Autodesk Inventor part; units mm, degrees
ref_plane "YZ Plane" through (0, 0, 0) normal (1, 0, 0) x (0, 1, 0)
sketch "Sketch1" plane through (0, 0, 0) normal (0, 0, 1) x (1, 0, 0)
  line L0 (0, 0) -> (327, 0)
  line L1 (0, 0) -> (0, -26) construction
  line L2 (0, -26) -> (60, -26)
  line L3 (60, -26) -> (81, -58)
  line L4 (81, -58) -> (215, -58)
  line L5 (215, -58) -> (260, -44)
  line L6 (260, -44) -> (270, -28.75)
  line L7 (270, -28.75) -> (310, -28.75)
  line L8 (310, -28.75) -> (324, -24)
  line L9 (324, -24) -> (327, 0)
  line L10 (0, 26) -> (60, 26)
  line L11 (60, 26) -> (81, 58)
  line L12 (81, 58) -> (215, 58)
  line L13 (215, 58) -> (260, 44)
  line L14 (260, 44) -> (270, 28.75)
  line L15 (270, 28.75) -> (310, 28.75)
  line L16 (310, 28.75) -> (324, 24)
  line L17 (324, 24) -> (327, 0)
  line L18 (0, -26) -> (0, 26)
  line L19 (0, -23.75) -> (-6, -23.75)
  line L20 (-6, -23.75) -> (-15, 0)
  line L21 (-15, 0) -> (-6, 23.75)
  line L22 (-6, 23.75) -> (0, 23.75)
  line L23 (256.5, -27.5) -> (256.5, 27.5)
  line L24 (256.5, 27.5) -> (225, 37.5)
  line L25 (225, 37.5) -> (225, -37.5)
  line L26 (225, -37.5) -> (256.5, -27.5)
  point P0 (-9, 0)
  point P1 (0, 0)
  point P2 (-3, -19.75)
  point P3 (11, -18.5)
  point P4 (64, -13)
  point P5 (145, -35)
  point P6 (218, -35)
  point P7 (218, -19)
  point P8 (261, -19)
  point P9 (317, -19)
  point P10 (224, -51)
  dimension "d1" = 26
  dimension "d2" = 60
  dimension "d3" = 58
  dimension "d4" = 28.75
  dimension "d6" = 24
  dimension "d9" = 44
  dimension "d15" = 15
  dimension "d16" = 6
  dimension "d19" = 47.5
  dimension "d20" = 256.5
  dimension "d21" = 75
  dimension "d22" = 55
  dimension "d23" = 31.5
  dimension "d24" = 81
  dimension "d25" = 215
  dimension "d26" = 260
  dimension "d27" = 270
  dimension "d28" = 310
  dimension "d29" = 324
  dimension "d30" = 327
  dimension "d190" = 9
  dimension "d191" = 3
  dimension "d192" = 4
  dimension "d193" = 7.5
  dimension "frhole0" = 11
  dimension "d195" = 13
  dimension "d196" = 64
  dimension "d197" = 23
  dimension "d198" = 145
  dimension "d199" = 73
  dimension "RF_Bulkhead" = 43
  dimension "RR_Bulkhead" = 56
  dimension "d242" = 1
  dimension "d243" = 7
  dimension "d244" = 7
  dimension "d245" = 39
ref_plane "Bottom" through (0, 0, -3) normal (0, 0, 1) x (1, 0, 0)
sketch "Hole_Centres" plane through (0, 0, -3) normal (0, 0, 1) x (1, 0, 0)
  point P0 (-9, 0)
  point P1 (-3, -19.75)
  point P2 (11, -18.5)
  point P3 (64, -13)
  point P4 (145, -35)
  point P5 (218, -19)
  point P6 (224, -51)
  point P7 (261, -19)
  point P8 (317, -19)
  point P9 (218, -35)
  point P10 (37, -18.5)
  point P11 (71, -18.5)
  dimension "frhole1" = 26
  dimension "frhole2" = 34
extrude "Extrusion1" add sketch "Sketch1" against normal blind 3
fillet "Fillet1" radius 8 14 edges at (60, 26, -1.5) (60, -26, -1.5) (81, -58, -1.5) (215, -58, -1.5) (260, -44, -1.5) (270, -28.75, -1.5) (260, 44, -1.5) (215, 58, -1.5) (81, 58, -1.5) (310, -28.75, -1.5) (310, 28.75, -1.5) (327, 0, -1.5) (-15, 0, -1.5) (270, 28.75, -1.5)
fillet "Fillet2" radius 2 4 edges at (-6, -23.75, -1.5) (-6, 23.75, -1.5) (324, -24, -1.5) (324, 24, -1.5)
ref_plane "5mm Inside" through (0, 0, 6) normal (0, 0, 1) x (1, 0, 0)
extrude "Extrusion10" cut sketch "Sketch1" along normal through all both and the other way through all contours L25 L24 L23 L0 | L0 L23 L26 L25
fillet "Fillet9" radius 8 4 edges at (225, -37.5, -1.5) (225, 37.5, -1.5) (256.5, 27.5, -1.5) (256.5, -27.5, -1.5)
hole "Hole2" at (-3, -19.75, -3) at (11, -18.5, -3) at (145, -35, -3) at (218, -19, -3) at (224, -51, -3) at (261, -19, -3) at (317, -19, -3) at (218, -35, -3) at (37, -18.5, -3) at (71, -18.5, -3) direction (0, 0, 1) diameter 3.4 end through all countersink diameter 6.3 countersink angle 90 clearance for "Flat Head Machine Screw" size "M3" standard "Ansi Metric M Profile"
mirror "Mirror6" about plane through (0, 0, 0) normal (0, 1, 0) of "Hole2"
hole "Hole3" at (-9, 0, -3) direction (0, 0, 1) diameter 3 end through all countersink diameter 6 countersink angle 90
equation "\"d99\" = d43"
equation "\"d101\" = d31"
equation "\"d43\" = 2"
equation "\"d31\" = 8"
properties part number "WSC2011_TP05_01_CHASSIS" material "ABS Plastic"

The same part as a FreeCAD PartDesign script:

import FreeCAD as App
import Part
import Sketcher
from FreeCAD import Vector


def edges_at(feature, points):
    """Names of the edges that pass closest to the given points."""
    edges = feature.Shape.Edges
    near = lambda p: min(range(len(edges)), key=lambda i: edges[i].distToShape(Part.Vertex(*p))[0])
    return sorted({f"Edge{near(p) + 1}" for p in points})


def add_polygon(sketch, points):
    """Adds a closed chain of lines whose ends are joined by coincident constraints."""
    first, n = sketch.GeometryCount, len(points)
    for a, b in zip(points, points[1:] + points[:1]):
        sketch.addGeometry(Part.LineSegment(App.Vector(*a, 0), App.Vector(*b, 0)), False)
    for i in range(n):
        sketch.addConstraint(Sketcher.Constraint("Coincident", first + i, 2, first + (i + 1) % n, 1))

doc = App.newDocument("Part")
params = doc.addObject("Spreadsheet::Sheet", "Params")
for row, (alias, value) in enumerate([
    ("sketch1_width", "6 mm"),
    ("sketch1_width2", "6 mm"),
    ("sketch1_width3", "60 mm"),
    ("sketch1_width4", "60 mm"),
    ("sketch1_height", "2.25 mm"),
    ("pad1_length", "3 mm"),
    ("fillet_radius", "8 mm"),
    ("fillet2_radius", "2 mm"),
    ("sketch2_height", "75 mm"),
    ("sketch2_height2", "55 mm"),
    ("fillet3_radius", "8 mm"),
    ("sketch3_diameter", "3.4 mm"),
    ("hole_diameter", "3.4 mm"),
    ("hole_csink_diameter", "6.3 mm"),
    ("sketch4_diameter", "3 mm"),
    ("hole2_diameter", "3 mm"),
    ("hole2_csink_diameter", "6 mm"),
], start=1):
    params.set(f"A{row}", alias)
    params.set(f"B{row}", "=" + value)
    params.setAlias(f"B{row}", alias)

body = doc.addObject("PartDesign::Body", "Body")

# Sketch on XY plane
sketch1 = body.newObject("Sketcher::SketchObject", "Sketch")
sketch1.AttachmentSupport = (doc.getObject("XY_Plane"), [""])
sketch1.MapMode = "FlatFace"
add_polygon(sketch1, [(0, 26), (0, 23.75), (-6, 23.75), (-15, 0), (-6, -23.75), (0, -23.75), (0, -26), (60, -26), (81, -58), (215, -58), (260, -44), (270, -28.75), (310, -28.75), (324, -24), (327, 0), (324, 24), (310, 28.75), (270, 28.75), (260, 44), (215, 58), (81, 58), (60, 26)])  # lines 0-21
sketch1.addConstraint(Sketcher.Constraint("Vertical", 0))
sketch1.addConstraint(Sketcher.Constraint("Horizontal", 1))
sketch1.addConstraint(Sketcher.Constraint("Horizontal", 4))
sketch1.addConstraint(Sketcher.Constraint("Vertical", 5))
sketch1.addConstraint(Sketcher.Constraint("Horizontal", 6))
sketch1.addConstraint(Sketcher.Constraint("Horizontal", 8))
sketch1.addConstraint(Sketcher.Constraint("Horizontal", 11))
sketch1.addConstraint(Sketcher.Constraint("Horizontal", 16))
sketch1.addConstraint(Sketcher.Constraint("Horizontal", 19))
sketch1.addConstraint(Sketcher.Constraint("Horizontal", 21))
sketch1.addConstraint(Sketcher.Constraint("PointOnObject", 0, 2, -2))
sketch1.addConstraint(Sketcher.Constraint("PointOnObject", 2, 2, -1))
sketch1.addConstraint(Sketcher.Constraint("PointOnObject", 4, 2, -2))
sketch1.addConstraint(Sketcher.Constraint("PointOnObject", 13, 2, -1))
sketch1.addConstraint(Sketcher.Constraint("DistanceX", 1, 2, 1, 1, 6.0))
sketch1.addConstraint(Sketcher.Constraint("DistanceX", 4, 1, 4, 2, 6.0))
sketch1.addConstraint(Sketcher.Constraint("DistanceX", 6, 1, 6, 2, 60.0))
sketch1.addConstraint(Sketcher.Constraint("DistanceX", 21, 2, 21, 1, 60.0))
sketch1.addConstraint(Sketcher.Constraint("DistanceX", 2, 2, -1, 1, 15.0))
sketch1.addConstraint(Sketcher.Constraint("DistanceY", 5, 2, -1, 1, 26.0))
sketch1.addConstraint(Sketcher.Constraint("DistanceX", -1, 1, 7, 2, 81.0))
sketch1.addConstraint(Sketcher.Constraint("DistanceY", 7, 2, -1, 1, 58.0))
sketch1.addConstraint(Sketcher.Constraint("DistanceX", -1, 1, 8, 2, 215.0))
sketch1.addConstraint(Sketcher.Constraint("DistanceX", -1, 1, 9, 2, 260.0))
sketch1.addConstraint(Sketcher.Constraint("DistanceY", 9, 2, -1, 1, 44.0))
sketch1.addConstraint(Sketcher.Constraint("DistanceX", -1, 1, 10, 2, 270.0))
sketch1.addConstraint(Sketcher.Constraint("DistanceX", -1, 1, 11, 2, 310.0))
sketch1.addConstraint(Sketcher.Constraint("DistanceX", -1, 1, 12, 2, 324.0))
sketch1.addConstraint(Sketcher.Constraint("DistanceY", 12, 2, -1, 1, 24.0))
sketch1.addConstraint(Sketcher.Constraint("DistanceX", -1, 1, 13, 2, 327.0))
sketch1.addConstraint(Sketcher.Constraint("DistanceX", -1, 1, 14, 2, 324.0))
sketch1.addConstraint(Sketcher.Constraint("DistanceY", -1, 1, 14, 2, 24.0))
sketch1.addConstraint(Sketcher.Constraint("DistanceX", -1, 1, 15, 2, 310.0))
sketch1.addConstraint(Sketcher.Constraint("DistanceX", -1, 1, 16, 2, 270.0))
sketch1.addConstraint(Sketcher.Constraint("DistanceX", -1, 1, 17, 2, 260.0))
sketch1.addConstraint(Sketcher.Constraint("DistanceY", -1, 1, 17, 2, 44.0))
sketch1.addConstraint(Sketcher.Constraint("DistanceX", -1, 1, 18, 2, 215.0))
sketch1.addConstraint(Sketcher.Constraint("DistanceY", -1, 1, 18, 2, 58.0))
sketch1.addConstraint(Sketcher.Constraint("DistanceX", -1, 1, 19, 2, 81.0))
sketch1.addConstraint(Sketcher.Constraint("DistanceY", -1, 1, 20, 2, 26.0))
sketch1.addConstraint(Sketcher.Constraint("DistanceY", 3, 2, 1, 2, 47.5))
sketch1.addConstraint(Sketcher.Constraint("DistanceY", 10, 2, -1, 1, 28.75))
sketch1.addConstraint(Sketcher.Constraint("DistanceY", -1, 1, 15, 2, 28.75))
sketch1.addConstraint(Sketcher.Constraint("DistanceY", 0, 2, 0, 1, 2.25))
sketch1.setExpression("Constraints[36]", "Params.sketch1_width")
sketch1.setExpression("Constraints[37]", "Params.sketch1_width2")
sketch1.setExpression("Constraints[38]", "Params.sketch1_width3")
sketch1.setExpression("Constraints[39]", "Params.sketch1_width4")
sketch1.setExpression("Constraints[65]", "Params.sketch1_height")
pad1 = body.newObject("PartDesign::Pad", "Pad")
pad1.Profile = sketch1
pad1.setExpression("Length", "Params.pad1_length")
pad1.Reversed = True
doc.recompute()

fillet = body.newObject("PartDesign::Fillet", "Fillet")
fillet.Base = (pad1, edges_at(pad1, [
    (60, 26, -1.5),
    (60, -26, -1.5),
    (81, -58, -1.5),
    (215, -58, -1.5),
    (260, -44, -1.5),
    (270, -28.75, -1.5),
    (260, 44, -1.5),
    (215, 58, -1.5),
    (81, 58, -1.5),
    (310, -28.75, -1.5),
    (310, 28.75, -1.5),
    (327, 0, -1.5),
    (-15, 0, -1.5),
    (270, 28.75, -1.5),
]))
fillet.setExpression("Radius", "Params.fillet_radius")
doc.recompute()

fillet2 = body.newObject("PartDesign::Fillet", "Fillet001")
fillet2.Base = (fillet, edges_at(fillet, [
    (-6, -23.75, -1.5),
    (-6, 23.75, -1.5),
    (324, -24, -1.5),
    (324, 24, -1.5),
]))
fillet2.setExpression("Radius", "Params.fillet2_radius")

# Sketch on XY plane
sketch2 = body.newObject("Sketcher::SketchObject", "Sketch001")
sketch2.AttachmentSupport = (doc.getObject("XY_Plane"), [""])
sketch2.MapMode = "FlatFace"
add_polygon(sketch2, [(225, 37.5), (225, -37.5), (256.5, -27.5), (256.5, 27.5)])  # lines 0-3
sketch2.addConstraint(Sketcher.Constraint("Vertical", 0))
sketch2.addConstraint(Sketcher.Constraint("Vertical", 2))
sketch2.addConstraint(Sketcher.Constraint("Equal", 1, 3))
sketch2.addConstraint(Sketcher.Constraint("DistanceY", 0, 2, 0, 1, 75.0))
sketch2.addConstraint(Sketcher.Constraint("DistanceY", 2, 1, 2, 2, 55.0))
sketch2.addConstraint(Sketcher.Constraint("DistanceX", -1, 1, 1, 2, 256.5))
sketch2.addConstraint(Sketcher.Constraint("DistanceX", 0, 2, 1, 2, 31.5))
sketch2.addConstraint(Sketcher.Constraint("DistanceY", 0, 2, -1, 1, 37.5))
sketch2.setExpression("Constraints[7]", "Params.sketch2_height")
sketch2.setExpression("Constraints[8]", "Params.sketch2_height2")
pocket1 = body.newObject("PartDesign::Pocket", "Pocket")
pocket1.Profile = sketch2
pocket1.Type = "ThroughAll"
pocket1.Midplane = True
doc.recompute()

fillet3 = body.newObject("PartDesign::Fillet", "Fillet002")
fillet3.Base = (pocket1, edges_at(pocket1, [
    (225, -37.5, -1.5),
    (225, 37.5, -1.5),
    (256.5, 27.5, -1.5),
    (256.5, -27.5, -1.5),
]))
fillet3.setExpression("Radius", "Params.fillet3_radius")

# Sketch on XY plane
sketch3 = body.newObject("Sketcher::SketchObject", "Sketch002")
sketch3.AttachmentSupport = (doc.getObject("XY_Plane"), [""])
sketch3.MapMode = "FlatFace"
sketch3.AttachmentOffset = App.Placement(Vector(0, 0, -3), App.Rotation())
sketch3.addGeometry(Part.Circle(Vector(-3, -19.75, 0), Vector(0, 0, 1), 1.7), False)
sketch3.addGeometry(Part.Circle(Vector(11, -18.5, 0), Vector(0, 0, 1), 1.7), False)
sketch3.addGeometry(Part.Circle(Vector(145, -35, 0), Vector(0, 0, 1), 1.7), False)
sketch3.addGeometry(Part.Circle(Vector(218, -19, 0), Vector(0, 0, 1), 1.7), False)
sketch3.addGeometry(Part.Circle(Vector(224, -51, 0), Vector(0, 0, 1), 1.7), False)
sketch3.addGeometry(Part.Circle(Vector(261, -19, 0), Vector(0, 0, 1), 1.7), False)
sketch3.addGeometry(Part.Circle(Vector(317, -19, 0), Vector(0, 0, 1), 1.7), False)
sketch3.addGeometry(Part.Circle(Vector(218, -35, 0), Vector(0, 0, 1), 1.7), False)
sketch3.addGeometry(Part.Circle(Vector(37, -18.5, 0), Vector(0, 0, 1), 1.7), False)
sketch3.addGeometry(Part.Circle(Vector(71, -18.5, 0), Vector(0, 0, 1), 1.7), False)
sketch3.addConstraint(Sketcher.Constraint("Equal", 0, 1))
sketch3.addConstraint(Sketcher.Constraint("Equal", 1, 2))
sketch3.addConstraint(Sketcher.Constraint("Equal", 2, 3))
sketch3.addConstraint(Sketcher.Constraint("Equal", 3, 4))
sketch3.addConstraint(Sketcher.Constraint("Equal", 4, 5))
sketch3.addConstraint(Sketcher.Constraint("Equal", 5, 6))
sketch3.addConstraint(Sketcher.Constraint("Equal", 6, 7))
sketch3.addConstraint(Sketcher.Constraint("Equal", 7, 8))
sketch3.addConstraint(Sketcher.Constraint("Equal", 8, 9))
sketch3.addConstraint(Sketcher.Constraint("Horizontal", 3, 3, 5, 3))
sketch3.addConstraint(Sketcher.Constraint("Horizontal", 5, 3, 6, 3))
sketch3.addConstraint(Sketcher.Constraint("Horizontal", 2, 3, 7, 3))
sketch3.addConstraint(Sketcher.Constraint("Horizontal", 1, 3, 8, 3))
sketch3.addConstraint(Sketcher.Constraint("Horizontal", 8, 3, 9, 3))
sketch3.addConstraint(Sketcher.Constraint("Vertical", 3, 3, 7, 3))
sketch3.addConstraint(Sketcher.Constraint("Diameter", 0, 3.4))
sketch3.addConstraint(Sketcher.Constraint("DistanceX", 0, 3, -1, 1, 3.0))
sketch3.addConstraint(Sketcher.Constraint("DistanceX", -1, 1, 1, 3, 11.0))
sketch3.addConstraint(Sketcher.Constraint("DistanceX", -1, 1, 2, 3, 145.0))
sketch3.addConstraint(Sketcher.Constraint("DistanceY", 2, 3, -1, 1, 35.0))
sketch3.addConstraint(Sketcher.Constraint("DistanceX", -1, 1, 3, 3, 218.0))
sketch3.addConstraint(Sketcher.Constraint("DistanceY", 3, 3, -1, 1, 19.0))
sketch3.addConstraint(Sketcher.Constraint("DistanceX", -1, 1, 4, 3, 224.0))
sketch3.addConstraint(Sketcher.Constraint("DistanceY", 4, 3, -1, 1, 51.0))
sketch3.addConstraint(Sketcher.Constraint("DistanceX", -1, 1, 5, 3, 261.0))
sketch3.addConstraint(Sketcher.Constraint("DistanceX", -1, 1, 6, 3, 317.0))
sketch3.addConstraint(Sketcher.Constraint("DistanceX", -1, 1, 8, 3, 37.0))
sketch3.addConstraint(Sketcher.Constraint("DistanceX", -1, 1, 9, 3, 71.0))
sketch3.addConstraint(Sketcher.Constraint("DistanceY", 1, 3, -1, 1, 18.5))
sketch3.addConstraint(Sketcher.Constraint("DistanceY", 0, 3, -1, 1, 19.75))
sketch3.setExpression("Constraints[15]", "Params.sketch3_diameter")
doc.recompute()
hole = body.newObject("PartDesign::Hole", "Hole")
hole.Profile = sketch3
hole.ThreadType = "None"
hole.setExpression("Diameter", "Params.hole_diameter")
hole.DepthType = "ThroughAll"
hole.HoleCutType = "Countersink"
hole.setExpression("HoleCutDiameter", "Params.hole_csink_diameter")
hole.HoleCutCountersinkAngle = 90
hole.Reversed = True
doc.recompute()

mirrored = body.newObject("PartDesign::Mirrored", "Mirrored")
mirrored.Originals = [hole]
mirrored.MirrorPlane = (doc.getObject("XZ_Plane"), [""])
body.Tip = mirrored

# Sketch on XY plane
sketch4 = body.newObject("Sketcher::SketchObject", "Sketch003")
sketch4.AttachmentSupport = (doc.getObject("XY_Plane"), [""])
sketch4.MapMode = "FlatFace"
sketch4.AttachmentOffset = App.Placement(Vector(0, 0, -3), App.Rotation())
sketch4.addGeometry(Part.Circle(Vector(-9, 0, 0), Vector(0, 0, 1), 1.5), False)
sketch4.addConstraint(Sketcher.Constraint("PointOnObject", 0, 3, -1))
sketch4.addConstraint(Sketcher.Constraint("Diameter", 0, 3.0))
sketch4.addConstraint(Sketcher.Constraint("DistanceX", 0, 3, -1, 1, 9.0))
sketch4.setExpression("Constraints[1]", "Params.sketch4_diameter")
doc.recompute()
hole2 = body.newObject("PartDesign::Hole", "Hole001")
hole2.Profile = sketch4
hole2.ThreadType = "None"
hole2.setExpression("Diameter", "Params.hole2_diameter")
hole2.DepthType = "ThroughAll"
hole2.HoleCutType = "Countersink"
hole2.setExpression("HoleCutDiameter", "Params.hole2_csink_diameter")
hole2.HoleCutCountersinkAngle = 90
hole2.Reversed = True

doc.recompute()
